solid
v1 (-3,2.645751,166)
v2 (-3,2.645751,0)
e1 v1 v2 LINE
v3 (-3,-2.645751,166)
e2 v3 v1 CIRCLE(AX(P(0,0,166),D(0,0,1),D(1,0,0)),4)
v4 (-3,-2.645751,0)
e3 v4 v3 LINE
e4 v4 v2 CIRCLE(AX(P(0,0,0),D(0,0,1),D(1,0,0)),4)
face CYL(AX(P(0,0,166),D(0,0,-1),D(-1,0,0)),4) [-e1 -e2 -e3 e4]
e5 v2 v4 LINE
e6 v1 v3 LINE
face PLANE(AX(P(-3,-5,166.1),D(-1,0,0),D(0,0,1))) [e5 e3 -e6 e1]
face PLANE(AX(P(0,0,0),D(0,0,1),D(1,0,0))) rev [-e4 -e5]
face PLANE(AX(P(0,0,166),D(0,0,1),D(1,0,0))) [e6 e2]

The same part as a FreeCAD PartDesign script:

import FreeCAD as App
import Part
import Sketcher

V = App.Vector


def add_polygon(sketch, points):
    """Adds a closed chain of lines whose ends are joined by coincident constraints."""
    first, n = sketch.GeometryCount, len(points)
    for a, b in zip(points, points[1:] + points[:1]):
        sketch.addGeometry(Part.LineSegment(App.Vector(*a, 0), App.Vector(*b, 0)), False)
    for i in range(n):
        sketch.addConstraint(Sketcher.Constraint("Coincident", first + i, 2, first + (i + 1) % n, 1))

doc = App.newDocument("Part")
body = doc.addObject("PartDesign::Body", "Body")

# Sketch on XY plane
sketch1 = body.newObject("Sketcher::SketchObject", "Sketch")
sketch1.AttachmentSupport = (doc.getObject("XY_Plane"), [""])
sketch1.MapMode = "FlatFace"
sketch1.addGeometry(Part.Circle(V(0, 0, 0), V(0, 0, 1), 4), False)
sketch1.addConstraint([
    Sketcher.Constraint("Coincident", 0, 3, -1, 1),
    Sketcher.Constraint("Diameter", 0, 8.0),
])
pad1 = body.newObject("PartDesign::Pad", "Pad")
pad1.Profile = sketch1
pad1.Length = 166

# Sketch on XY plane
sketch2 = body.newObject("Sketcher::SketchObject", "Sketch001")
sketch2.AttachmentSupport = (doc.getObject("XY_Plane"), [""])
sketch2.MapMode = "FlatFace"
sketch2.AttachmentOffset = App.Placement(V(0, 0, -0.1), App.Rotation())
add_polygon(sketch2, [(-5, 5), (-5, -5), (-3, -5), (-3, 5)])  # lines 0-3
sketch2.addConstraint([
    Sketcher.Constraint("Vertical", 0),
    Sketcher.Constraint("Horizontal", 1),
    Sketcher.Constraint("Vertical", 2),
    Sketcher.Constraint("Horizontal", 3),
    Sketcher.Constraint("DistanceX", 1, 1, 1, 2, 2.0),
    Sketcher.Constraint("DistanceY", 0, 2, 0, 1, 10.0),
    Sketcher.Constraint("DistanceX", 0, 2, -1, 1, 5.0),
    Sketcher.Constraint("DistanceY", 0, 2, -1, 1, 5.0),
])
pocket1 = body.newObject("PartDesign::Pocket", "Pocket")
pocket1.Profile = sketch2
pocket1.Length = 166.2
pocket1.Reversed = True

doc.recompute()
